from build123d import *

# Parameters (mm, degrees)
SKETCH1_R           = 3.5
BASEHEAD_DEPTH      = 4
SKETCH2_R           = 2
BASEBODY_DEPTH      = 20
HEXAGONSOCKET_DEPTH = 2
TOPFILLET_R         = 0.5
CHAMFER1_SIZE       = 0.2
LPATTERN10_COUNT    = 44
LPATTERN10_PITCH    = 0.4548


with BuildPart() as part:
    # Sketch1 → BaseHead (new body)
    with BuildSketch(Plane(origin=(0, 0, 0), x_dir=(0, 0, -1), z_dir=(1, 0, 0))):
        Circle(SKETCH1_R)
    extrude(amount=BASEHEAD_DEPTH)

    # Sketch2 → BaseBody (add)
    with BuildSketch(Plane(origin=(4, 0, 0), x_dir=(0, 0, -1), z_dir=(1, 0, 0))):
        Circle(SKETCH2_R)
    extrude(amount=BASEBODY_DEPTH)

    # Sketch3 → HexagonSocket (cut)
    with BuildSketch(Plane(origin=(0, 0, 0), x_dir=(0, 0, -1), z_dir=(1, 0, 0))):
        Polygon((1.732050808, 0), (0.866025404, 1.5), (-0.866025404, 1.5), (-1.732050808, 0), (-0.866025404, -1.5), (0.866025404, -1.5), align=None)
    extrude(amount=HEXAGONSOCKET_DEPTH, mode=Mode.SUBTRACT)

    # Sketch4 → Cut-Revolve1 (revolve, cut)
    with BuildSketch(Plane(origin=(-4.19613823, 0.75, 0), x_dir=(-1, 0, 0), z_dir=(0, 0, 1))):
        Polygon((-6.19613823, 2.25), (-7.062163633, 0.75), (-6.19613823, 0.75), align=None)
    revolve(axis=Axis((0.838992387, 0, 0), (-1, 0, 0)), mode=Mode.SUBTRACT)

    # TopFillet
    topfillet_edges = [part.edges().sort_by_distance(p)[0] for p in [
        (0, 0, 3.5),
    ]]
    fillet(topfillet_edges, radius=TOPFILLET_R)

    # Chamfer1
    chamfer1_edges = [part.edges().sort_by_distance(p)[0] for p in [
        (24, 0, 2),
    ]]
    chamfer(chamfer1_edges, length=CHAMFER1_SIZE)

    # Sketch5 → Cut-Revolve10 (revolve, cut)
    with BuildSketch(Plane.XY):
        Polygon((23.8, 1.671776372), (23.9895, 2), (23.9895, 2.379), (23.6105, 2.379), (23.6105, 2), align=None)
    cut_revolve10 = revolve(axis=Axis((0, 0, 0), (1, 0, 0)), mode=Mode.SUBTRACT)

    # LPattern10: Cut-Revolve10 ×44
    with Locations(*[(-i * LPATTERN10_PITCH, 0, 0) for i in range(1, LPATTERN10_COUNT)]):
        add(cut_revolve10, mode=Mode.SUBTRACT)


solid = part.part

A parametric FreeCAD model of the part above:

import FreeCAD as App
import Part
import Sketcher

V = App.Vector
Q = App.Units.Quantity


def edges_at(feature, points):
    """Names of the edges that pass closest to the given points."""
    edges = feature.Shape.Edges
    near = lambda p: min(range(len(edges)), key=lambda i: edges[i].distToShape(Part.Vertex(*p))[0])
    return sorted({f"Edge{near(p) + 1}" for p in points})


def add_polygon(sketch, points):
    """Adds a closed chain of lines whose ends are joined by coincident constraints."""
    first, n = sketch.GeometryCount, len(points)
    for a, b in zip(points, points[1:] + points[:1]):
        sketch.addGeometry(Part.LineSegment(App.Vector(*a, 0), App.Vector(*b, 0)), False)
    for i in range(n):
        sketch.addConstraint(Sketcher.Constraint("Coincident", first + i, 2, first + (i + 1) % n, 1))

doc = App.newDocument("Part")
body = doc.addObject("PartDesign::Body", "Body")

# Sketch on YZ plane
sketch1 = doc.addObject("Sketcher::SketchObject", "Sketch")
body.addObject(sketch1)
sketch1.AttachmentSupport = (doc.YZ_Plane, [""])
sketch1.MapMode = "FlatFace"
sketch1.addGeometry(Part.Circle(V(0, 0, 0), V(0, 0, 1), 3.5), False)
sketch1.addConstraint([
    Sketcher.Constraint("Coincident", 0, 3, -1, 1),
    Sketcher.Constraint("Diameter", 0, 7.0),
])
pad1 = doc.addObject("PartDesign::Pad", "Pad")
body.addObject(pad1)
pad1.Profile = sketch1
pad1.Length = 4

# Sketch on YZ plane
sketch2 = doc.addObject("Sketcher::SketchObject", "Sketch001")
body.addObject(sketch2)
sketch2.AttachmentSupport = (doc.YZ_Plane, [""])
sketch2.MapMode = "FlatFace"
sketch2.AttachmentOffset = App.Placement(V(0, 0, 4), App.Rotation())
sketch2.addGeometry(Part.Circle(V(0, 0, 0), V(0, 0, 1), 2), False)
sketch2.addConstraint([
    Sketcher.Constraint("Coincident", 0, 3, -1, 1),
    Sketcher.Constraint("Diameter", 0, 4.0),
])
pad2 = doc.addObject("PartDesign::Pad", "Pad001")
body.addObject(pad2)
pad2.Profile = sketch2
pad2.Length = 20

# Sketch on YZ plane
sketch3 = doc.addObject("Sketcher::SketchObject", "Sketch002")
body.addObject(sketch3)
sketch3.AttachmentSupport = (doc.YZ_Plane, [""])
sketch3.MapMode = "FlatFace"
add_polygon(sketch3, [(0, -1.7), (1.5, -0.9), (1.5, 0.9), (0, 1.7), (-1.5, 0.9), (-1.5, -0.9)])  # lines 0-5
sketch3.addConstraint([
    Sketcher.Constraint("Vertical", 1),
    Sketcher.Constraint("Vertical", 4),
    Sketcher.Constraint("Symmetric", 0, 2, 3, 2, -1, 1),
    Sketcher.Constraint("Symmetric", 2, 2, 5, 2, -1, 1),
    Sketcher.Constraint("PointOnObject", 2, 2, -2),
    Sketcher.Constraint("Parallel", 2, 5),
    Sketcher.Constraint("Horizontal", 1, 2, 3, 2),
    Sketcher.Constraint("Angle", 0, Q("30 deg")),
    Sketcher.Constraint("DistanceX", 3, 2, 1, 2, 3.0),
    Sketcher.Constraint("DistanceY", 1, 1, 1, 2, 1.732051),
])
pocket1 = doc.addObject("PartDesign::Pocket", "Pocket")
body.addObject(pocket1)
pocket1.Profile = sketch3
pocket1.Length = 2
pocket1.Reversed = True

# Sketch on XY plane
sketch4 = doc.addObject("Sketcher::SketchObject", "Sketch003")
body.addObject(sketch4)
sketch4.AttachmentSupport = (doc.XY_Plane, [""])
sketch4.MapMode = "FlatFace"
add_polygon(sketch4, [(2, -1.5), (2.9, 0), (2, 0)])  # lines 0-2
sketch4.addConstraint([
    Sketcher.Constraint("Horizontal", 1),
    Sketcher.Constraint("Vertical", 2),
    Sketcher.Constraint("PointOnObject", 0, 2, -1),
    Sketcher.Constraint("Angle", 0, Q("60 deg")),
    Sketcher.Constraint("DistanceY", 2, 2, 2, 1, 1.5),
    Sketcher.Constraint("DistanceX", -1, 1, 1, 2, 2.0),
])
groove = doc.addObject("PartDesign::Groove", "Groove")
body.addObject(groove)
groove.Profile = sketch4
groove.ReferenceAxis = (sketch4, ["H_Axis"])
groove.Angle = 360
doc.recompute()

fillet = doc.addObject("PartDesign::Fillet", "Fillet")
body.addObject(fillet)
fillet.Base = (groove, edges_at(groove, [(0, 0, 3.5)]))
fillet.Radius = 0.5
doc.recompute()

chamfer = doc.addObject("PartDesign::Chamfer", "Chamfer")
body.addObject(chamfer)
chamfer.Base = (fillet, edges_at(fillet, [(24, 0, 2)]))
chamfer.Size = 0.2

# Sketch on XY plane
sketch5 = doc.addObject("Sketcher::SketchObject", "Sketch004")
body.addObject(sketch5)
sketch5.AttachmentSupport = (doc.XY_Plane, [""])
sketch5.MapMode = "FlatFace"
add_polygon(sketch5, [(23.8, 1.67), (23.99, 2), (23.99, 2.38), (23.61, 2.38), (23.61, 2)])  # lines 0-4
sketch5.addConstraint([
    Sketcher.Constraint("Vertical", 1),
    Sketcher.Constraint("Horizontal", 2),
    Sketcher.Constraint("Vertical", 3),
    Sketcher.Constraint("Horizontal", 0, 2, 3, 2),
    Sketcher.Constraint("Equal", 2, 1),
    Sketcher.Constraint("Equal", 0, 4),
    Sketcher.Constraint("Angle", 0, Q("60 deg")),
    Sketcher.Constraint("DistanceY", -1, 1, 0, 2, 2.0),
    Sketcher.Constraint("DistanceX", -1, 1, 4, 2, 23.8),
    Sketcher.Constraint("DistanceX", 2, 2, 2, 1, 0.379),
])
groove2 = doc.addObject("PartDesign::Groove", "Groove001")
body.addObject(groove2)
groove2.Profile = sketch5
groove2.ReferenceAxis = (sketch5, ["H_Axis"])
groove2.Angle = 360
doc.recompute()

linearpattern = doc.addObject("PartDesign::LinearPattern", "LinearPattern")
body.addObject(linearpattern)
linearpattern.Originals = [groove2]
linearpattern.Direction = (doc.X_Axis, [""])
linearpattern.Mode = "offset"
linearpattern.Offset = 0.4548
linearpattern.Occurrences = 44
linearpattern.Reversed = True
body.Tip = linearpattern

doc.recompute()
